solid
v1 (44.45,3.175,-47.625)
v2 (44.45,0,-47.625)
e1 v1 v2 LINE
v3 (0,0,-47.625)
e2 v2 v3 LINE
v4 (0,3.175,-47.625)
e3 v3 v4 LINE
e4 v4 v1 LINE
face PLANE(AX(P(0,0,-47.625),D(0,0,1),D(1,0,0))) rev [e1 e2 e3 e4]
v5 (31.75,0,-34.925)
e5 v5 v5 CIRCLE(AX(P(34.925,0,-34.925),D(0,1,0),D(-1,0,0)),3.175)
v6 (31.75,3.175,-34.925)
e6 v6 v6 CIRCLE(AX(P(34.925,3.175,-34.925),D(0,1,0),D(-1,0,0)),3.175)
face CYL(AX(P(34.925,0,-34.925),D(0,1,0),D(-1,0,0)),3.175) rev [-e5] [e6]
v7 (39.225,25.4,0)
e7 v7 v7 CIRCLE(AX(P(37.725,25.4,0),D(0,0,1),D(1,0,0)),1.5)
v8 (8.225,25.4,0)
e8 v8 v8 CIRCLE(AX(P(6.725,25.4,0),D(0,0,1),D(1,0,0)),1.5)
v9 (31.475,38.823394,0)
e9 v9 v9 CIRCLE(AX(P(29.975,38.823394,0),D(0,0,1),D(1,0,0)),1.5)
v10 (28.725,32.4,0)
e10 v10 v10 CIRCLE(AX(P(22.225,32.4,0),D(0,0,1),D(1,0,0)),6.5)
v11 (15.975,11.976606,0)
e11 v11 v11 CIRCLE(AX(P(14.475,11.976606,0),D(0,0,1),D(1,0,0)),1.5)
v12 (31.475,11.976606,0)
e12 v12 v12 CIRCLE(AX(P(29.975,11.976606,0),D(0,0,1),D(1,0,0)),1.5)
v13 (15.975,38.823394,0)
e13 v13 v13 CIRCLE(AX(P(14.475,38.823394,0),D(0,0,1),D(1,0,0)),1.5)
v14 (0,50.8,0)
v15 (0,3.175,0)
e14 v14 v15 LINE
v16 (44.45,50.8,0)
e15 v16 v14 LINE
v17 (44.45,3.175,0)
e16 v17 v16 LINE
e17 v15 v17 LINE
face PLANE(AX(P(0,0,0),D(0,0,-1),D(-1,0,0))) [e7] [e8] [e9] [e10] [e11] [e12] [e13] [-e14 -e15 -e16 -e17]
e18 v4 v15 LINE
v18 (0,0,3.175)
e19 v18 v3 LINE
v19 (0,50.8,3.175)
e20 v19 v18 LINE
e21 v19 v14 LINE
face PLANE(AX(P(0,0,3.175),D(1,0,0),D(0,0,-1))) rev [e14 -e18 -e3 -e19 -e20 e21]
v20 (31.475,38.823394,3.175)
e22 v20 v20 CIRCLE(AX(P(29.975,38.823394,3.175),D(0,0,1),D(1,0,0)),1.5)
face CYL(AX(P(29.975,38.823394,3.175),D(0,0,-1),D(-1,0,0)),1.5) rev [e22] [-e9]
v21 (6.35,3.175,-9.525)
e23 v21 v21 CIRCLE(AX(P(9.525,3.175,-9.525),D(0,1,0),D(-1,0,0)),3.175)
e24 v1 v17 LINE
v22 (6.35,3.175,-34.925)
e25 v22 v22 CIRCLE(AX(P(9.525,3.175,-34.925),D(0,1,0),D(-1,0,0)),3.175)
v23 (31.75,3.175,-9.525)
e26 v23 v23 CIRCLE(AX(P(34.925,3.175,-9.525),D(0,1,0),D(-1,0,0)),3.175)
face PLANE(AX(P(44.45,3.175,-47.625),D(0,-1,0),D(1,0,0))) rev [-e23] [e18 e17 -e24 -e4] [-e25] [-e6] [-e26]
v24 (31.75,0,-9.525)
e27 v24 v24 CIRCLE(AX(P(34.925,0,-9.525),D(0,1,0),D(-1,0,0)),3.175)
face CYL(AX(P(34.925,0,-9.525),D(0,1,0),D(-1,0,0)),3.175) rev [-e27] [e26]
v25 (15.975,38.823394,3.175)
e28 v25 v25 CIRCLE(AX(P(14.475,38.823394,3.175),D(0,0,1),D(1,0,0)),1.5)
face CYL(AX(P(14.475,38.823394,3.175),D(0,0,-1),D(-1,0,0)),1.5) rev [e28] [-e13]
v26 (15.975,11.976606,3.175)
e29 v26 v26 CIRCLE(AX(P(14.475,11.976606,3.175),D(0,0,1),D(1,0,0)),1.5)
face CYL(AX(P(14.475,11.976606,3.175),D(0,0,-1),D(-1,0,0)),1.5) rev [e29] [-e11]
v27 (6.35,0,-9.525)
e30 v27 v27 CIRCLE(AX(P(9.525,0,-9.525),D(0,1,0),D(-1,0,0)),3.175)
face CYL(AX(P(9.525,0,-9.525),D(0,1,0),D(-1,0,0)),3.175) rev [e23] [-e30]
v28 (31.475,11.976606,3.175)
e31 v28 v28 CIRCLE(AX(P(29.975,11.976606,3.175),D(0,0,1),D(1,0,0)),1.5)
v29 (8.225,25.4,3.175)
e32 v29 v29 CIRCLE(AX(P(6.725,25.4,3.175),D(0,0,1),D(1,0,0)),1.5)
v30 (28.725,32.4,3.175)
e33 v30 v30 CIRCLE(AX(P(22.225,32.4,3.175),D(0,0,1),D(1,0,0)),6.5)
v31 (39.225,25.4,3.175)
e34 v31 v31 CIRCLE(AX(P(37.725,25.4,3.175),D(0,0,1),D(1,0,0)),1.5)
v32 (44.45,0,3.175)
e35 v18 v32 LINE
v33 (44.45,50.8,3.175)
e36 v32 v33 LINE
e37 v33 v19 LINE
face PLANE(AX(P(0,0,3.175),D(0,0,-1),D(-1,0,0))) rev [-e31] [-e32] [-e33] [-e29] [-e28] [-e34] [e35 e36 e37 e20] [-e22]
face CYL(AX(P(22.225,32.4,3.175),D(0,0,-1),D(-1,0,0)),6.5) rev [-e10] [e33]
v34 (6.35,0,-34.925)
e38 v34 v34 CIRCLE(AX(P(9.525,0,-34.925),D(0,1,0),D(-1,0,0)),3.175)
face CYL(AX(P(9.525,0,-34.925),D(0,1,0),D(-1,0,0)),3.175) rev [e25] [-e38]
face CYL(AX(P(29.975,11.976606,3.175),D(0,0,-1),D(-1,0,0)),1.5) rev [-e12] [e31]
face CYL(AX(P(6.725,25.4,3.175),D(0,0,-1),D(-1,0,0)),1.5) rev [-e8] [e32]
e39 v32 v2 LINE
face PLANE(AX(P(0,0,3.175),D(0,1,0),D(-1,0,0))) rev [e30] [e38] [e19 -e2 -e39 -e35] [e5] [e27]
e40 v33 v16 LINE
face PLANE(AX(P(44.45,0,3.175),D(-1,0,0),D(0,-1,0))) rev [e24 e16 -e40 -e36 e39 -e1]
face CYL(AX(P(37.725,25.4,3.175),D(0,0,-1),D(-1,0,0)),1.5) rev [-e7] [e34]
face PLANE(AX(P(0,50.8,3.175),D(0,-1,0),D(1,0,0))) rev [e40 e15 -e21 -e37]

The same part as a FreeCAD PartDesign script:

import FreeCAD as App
import Part
import Sketcher

V = App.Vector
Q = App.Units.Quantity

doc = App.newDocument("Part")
params = doc.addObject("Spreadsheet::Sheet", "Params")
for row, (alias, value) in enumerate([
    ("sketch1_height", "2 in"),
    ("sketch1_width", "1.75 in"),
    ("pad1_length", "0.125 in"),
    ("sketch2_width", "1.75 in"),
    ("sketch2_height", "0.125 in"),
    ("pad2_length", "1.875 in"),
    ("sketch3_diameter", "0.25 in"),
], start=1):
    params.set(f"A{row}", alias)
    params.set(f"B{row}", "=" + value)
    params.setAlias(f"B{row}", alias)

body = doc.addObject("PartDesign::Body", "Body")

sketch1 = body.newObject("Sketcher::SketchObject", "Sketch")
sketch1.AttachmentSupport = (doc.getObject("XY_Plane"), [""])
sketch1.MapMode = "FlatFace"
sketch1.addGeometry([
    Part.LineSegment(V(0, 50.8, 0), V(0, 0, 0)),
    Part.LineSegment(V(0, 0, 0), V(44.45, 0, 0)),
    Part.LineSegment(V(44.45, 0, 0), V(44.45, 50.8, 0)),
    Part.LineSegment(V(44.45, 50.8, 0), V(0, 50.8, 0)),
    Part.Circle(V(14.475, 11.976606, 0), V(0, 0, 1), 1.5),
    Part.Circle(V(6.725, 25.4, 0), V(0, 0, 1), 1.5),
    Part.Circle(V(29.975, 11.976606, 0), V(0, 0, 1), 1.5),
    Part.Circle(V(37.725, 25.4, 0), V(0, 0, 1), 1.5),
    Part.Circle(V(14.475, 38.823394, 0), V(0, 0, 1), 1.5),
    Part.Circle(V(22.225, 32.4, 0), V(0, 0, 1), 6.5),
    Part.Circle(V(29.975, 38.823394, 0), V(0, 0, 1), 1.5),
], False)
sketch1.addConstraint([
    Sketcher.Constraint("Coincident", 0, 2, 1, 1),
    Sketcher.Constraint("Coincident", 1, 2, 2, 1),
    Sketcher.Constraint("Coincident", 2, 2, 3, 1),
    Sketcher.Constraint("Coincident", 3, 2, 0, 1),
    Sketcher.Constraint("Vertical", 0),
    Sketcher.Constraint("Horizontal", 1),
    Sketcher.Constraint("Vertical", 2),
    Sketcher.Constraint("Horizontal", 3),
    Sketcher.Constraint("Coincident", 0, 2, -1, 1),
    Sketcher.Constraint("Equal", 4, 5),
    Sketcher.Constraint("Equal", 5, 6),
    Sketcher.Constraint("Equal", 6, 7),
    Sketcher.Constraint("Equal", 7, 8),
    Sketcher.Constraint("Equal", 8, 10),
    Sketcher.Constraint("Horizontal", 4, 3, 6, 3),
    Sketcher.Constraint("Horizontal", 5, 3, 7, 3),
    Sketcher.Constraint("Horizontal", 8, 3, 10, 3),
    Sketcher.Constraint("Vertical", 4, 3, 8, 3),
    Sketcher.Constraint("Vertical", 6, 3, 10, 3),
    Sketcher.Constraint("DistanceY", 0, 2, 0, 1, Q("2 in")),
    Sketcher.Constraint("DistanceY", -1, 1, 5, 3, Q("1 in")),
    Sketcher.Constraint("DistanceX", 1, 1, 1, 2, Q("1.75 in")),
    Sketcher.Constraint("Diameter", 4, Q("3 mm")),
    Sketcher.Constraint("Diameter", 9, Q("13 mm")),
    Sketcher.Constraint("DistanceX", -1, 1, 9, 3, Q("0.875 in")),
    Sketcher.Constraint("DistanceX", -1, 1, 4, 3, Q("14.475 mm")),
    Sketcher.Constraint("DistanceX", -1, 1, 5, 3, Q("6.725 mm")),
    Sketcher.Constraint("DistanceX", -1, 1, 6, 3, Q("29.975 mm")),
    Sketcher.Constraint("DistanceX", -1, 1, 7, 3, Q("37.725 mm")),
    Sketcher.Constraint("DistanceY", -1, 1, 9, 3, Q("32.4 mm")),
    Sketcher.Constraint("DistanceY", -1, 1, 4, 3, Q("11.976606 mm")),
    Sketcher.Constraint("DistanceY", -1, 1, 8, 3, Q("38.823394 mm")),
])
sketch1.setExpression("Constraints[19]", "Params.sketch1_height")
sketch1.setExpression("Constraints[21]", "Params.sketch1_width")
pad1 = body.newObject("PartDesign::Pad", "Pad")
pad1.Profile = sketch1
pad1.setExpression("Length", "Params.pad1_length")

sketch2 = body.newObject("Sketcher::SketchObject", "Sketch001")
sketch2.AttachmentSupport = (doc.getObject("XY_Plane"), [""])
sketch2.MapMode = "FlatFace"
sketch2.addGeometry([
    Part.LineSegment(V(44.45, 3.175, 0), V(44.45, 0, 0)),
    Part.LineSegment(V(44.45, 0, 0), V(0, 0, 0)),
    Part.LineSegment(V(0, 0, 0), V(0, 3.175, 0)),
    Part.LineSegment(V(0, 3.175, 0), V(44.45, 3.175, 0)),
], False)
sketch2.addConstraint([
    Sketcher.Constraint("Coincident", 0, 2, 1, 1),
    Sketcher.Constraint("Coincident", 1, 2, 2, 1),
    Sketcher.Constraint("Coincident", 2, 2, 3, 1),
    Sketcher.Constraint("Coincident", 3, 2, 0, 1),
    Sketcher.Constraint("Vertical", 0),
    Sketcher.Constraint("Horizontal", 1),
    Sketcher.Constraint("Vertical", 2),
    Sketcher.Constraint("Horizontal", 3),
    Sketcher.Constraint("Coincident", 1, 2, -1, 1),
    Sketcher.Constraint("DistanceX", 1, 2, 1, 1, Q("1.75 in")),
    Sketcher.Constraint("DistanceY", 0, 2, 0, 1, Q("0.125 in")),
])
sketch2.setExpression("Constraints[9]", "Params.sketch2_width")
sketch2.setExpression("Constraints[10]", "Params.sketch2_height")
pad2 = body.newObject("PartDesign::Pad", "Pad001")
pad2.Profile = sketch2
pad2.setExpression("Length", "Params.pad2_length")
pad2.Reversed = True

sketch3 = body.newObject("Sketcher::SketchObject", "Sketch002")
sketch3.AttachmentSupport = (doc.getObject("XZ_Plane"), [""])
sketch3.MapMode = "FlatFace"
sketch3.AttachmentOffset = App.Placement(V(0, 0, -0.125 * 25.4), App.Rotation())
sketch3.addGeometry([
    Part.Circle(V(34.925, -9.525, 0), V(0, 0, 1), 3.175),
    Part.Circle(V(34.925, -34.925, 0), V(0, 0, 1), 3.175),
    Part.Circle(V(9.525, -9.525, 0), V(0, 0, 1), 3.175),
    Part.Circle(V(9.525, -34.925, 0), V(0, 0, 1), 3.175),
], False)
sketch3.addConstraint([
    Sketcher.Constraint("Equal", 0, 1),
    Sketcher.Constraint("Equal", 1, 2),
    Sketcher.Constraint("Equal", 2, 3),
    Sketcher.Constraint("Horizontal", 0, 3, 2, 3),
    Sketcher.Constraint("Horizontal", 1, 3, 3, 3),
    Sketcher.Constraint("Vertical", 0, 3, 1, 3),
    Sketcher.Constraint("Vertical", 2, 3, 3, 3),
    Sketcher.Constraint("Diameter", 0, Q("0.25 in")),
    Sketcher.Constraint("DistanceY", 1, 3, 0, 3, Q("1 in")),
    Sketcher.Constraint("DistanceX", 2, 3, 0, 3, Q("1 in")),
    Sketcher.Constraint("DistanceX", -1, 1, 0, 3, Q("1.375 in")),
    Sketcher.Constraint("DistanceY", 0, 3, -1, 1, Q("0.375 in")),
])
sketch3.setExpression("Constraints[7]", "Params.sketch3_diameter")
pocket1 = body.newObject("PartDesign::Pocket", "Pocket")
pocket1.Profile = sketch3
pocket1.Type = "ThroughAll"
pocket1.Reversed = True

doc.recompute()
